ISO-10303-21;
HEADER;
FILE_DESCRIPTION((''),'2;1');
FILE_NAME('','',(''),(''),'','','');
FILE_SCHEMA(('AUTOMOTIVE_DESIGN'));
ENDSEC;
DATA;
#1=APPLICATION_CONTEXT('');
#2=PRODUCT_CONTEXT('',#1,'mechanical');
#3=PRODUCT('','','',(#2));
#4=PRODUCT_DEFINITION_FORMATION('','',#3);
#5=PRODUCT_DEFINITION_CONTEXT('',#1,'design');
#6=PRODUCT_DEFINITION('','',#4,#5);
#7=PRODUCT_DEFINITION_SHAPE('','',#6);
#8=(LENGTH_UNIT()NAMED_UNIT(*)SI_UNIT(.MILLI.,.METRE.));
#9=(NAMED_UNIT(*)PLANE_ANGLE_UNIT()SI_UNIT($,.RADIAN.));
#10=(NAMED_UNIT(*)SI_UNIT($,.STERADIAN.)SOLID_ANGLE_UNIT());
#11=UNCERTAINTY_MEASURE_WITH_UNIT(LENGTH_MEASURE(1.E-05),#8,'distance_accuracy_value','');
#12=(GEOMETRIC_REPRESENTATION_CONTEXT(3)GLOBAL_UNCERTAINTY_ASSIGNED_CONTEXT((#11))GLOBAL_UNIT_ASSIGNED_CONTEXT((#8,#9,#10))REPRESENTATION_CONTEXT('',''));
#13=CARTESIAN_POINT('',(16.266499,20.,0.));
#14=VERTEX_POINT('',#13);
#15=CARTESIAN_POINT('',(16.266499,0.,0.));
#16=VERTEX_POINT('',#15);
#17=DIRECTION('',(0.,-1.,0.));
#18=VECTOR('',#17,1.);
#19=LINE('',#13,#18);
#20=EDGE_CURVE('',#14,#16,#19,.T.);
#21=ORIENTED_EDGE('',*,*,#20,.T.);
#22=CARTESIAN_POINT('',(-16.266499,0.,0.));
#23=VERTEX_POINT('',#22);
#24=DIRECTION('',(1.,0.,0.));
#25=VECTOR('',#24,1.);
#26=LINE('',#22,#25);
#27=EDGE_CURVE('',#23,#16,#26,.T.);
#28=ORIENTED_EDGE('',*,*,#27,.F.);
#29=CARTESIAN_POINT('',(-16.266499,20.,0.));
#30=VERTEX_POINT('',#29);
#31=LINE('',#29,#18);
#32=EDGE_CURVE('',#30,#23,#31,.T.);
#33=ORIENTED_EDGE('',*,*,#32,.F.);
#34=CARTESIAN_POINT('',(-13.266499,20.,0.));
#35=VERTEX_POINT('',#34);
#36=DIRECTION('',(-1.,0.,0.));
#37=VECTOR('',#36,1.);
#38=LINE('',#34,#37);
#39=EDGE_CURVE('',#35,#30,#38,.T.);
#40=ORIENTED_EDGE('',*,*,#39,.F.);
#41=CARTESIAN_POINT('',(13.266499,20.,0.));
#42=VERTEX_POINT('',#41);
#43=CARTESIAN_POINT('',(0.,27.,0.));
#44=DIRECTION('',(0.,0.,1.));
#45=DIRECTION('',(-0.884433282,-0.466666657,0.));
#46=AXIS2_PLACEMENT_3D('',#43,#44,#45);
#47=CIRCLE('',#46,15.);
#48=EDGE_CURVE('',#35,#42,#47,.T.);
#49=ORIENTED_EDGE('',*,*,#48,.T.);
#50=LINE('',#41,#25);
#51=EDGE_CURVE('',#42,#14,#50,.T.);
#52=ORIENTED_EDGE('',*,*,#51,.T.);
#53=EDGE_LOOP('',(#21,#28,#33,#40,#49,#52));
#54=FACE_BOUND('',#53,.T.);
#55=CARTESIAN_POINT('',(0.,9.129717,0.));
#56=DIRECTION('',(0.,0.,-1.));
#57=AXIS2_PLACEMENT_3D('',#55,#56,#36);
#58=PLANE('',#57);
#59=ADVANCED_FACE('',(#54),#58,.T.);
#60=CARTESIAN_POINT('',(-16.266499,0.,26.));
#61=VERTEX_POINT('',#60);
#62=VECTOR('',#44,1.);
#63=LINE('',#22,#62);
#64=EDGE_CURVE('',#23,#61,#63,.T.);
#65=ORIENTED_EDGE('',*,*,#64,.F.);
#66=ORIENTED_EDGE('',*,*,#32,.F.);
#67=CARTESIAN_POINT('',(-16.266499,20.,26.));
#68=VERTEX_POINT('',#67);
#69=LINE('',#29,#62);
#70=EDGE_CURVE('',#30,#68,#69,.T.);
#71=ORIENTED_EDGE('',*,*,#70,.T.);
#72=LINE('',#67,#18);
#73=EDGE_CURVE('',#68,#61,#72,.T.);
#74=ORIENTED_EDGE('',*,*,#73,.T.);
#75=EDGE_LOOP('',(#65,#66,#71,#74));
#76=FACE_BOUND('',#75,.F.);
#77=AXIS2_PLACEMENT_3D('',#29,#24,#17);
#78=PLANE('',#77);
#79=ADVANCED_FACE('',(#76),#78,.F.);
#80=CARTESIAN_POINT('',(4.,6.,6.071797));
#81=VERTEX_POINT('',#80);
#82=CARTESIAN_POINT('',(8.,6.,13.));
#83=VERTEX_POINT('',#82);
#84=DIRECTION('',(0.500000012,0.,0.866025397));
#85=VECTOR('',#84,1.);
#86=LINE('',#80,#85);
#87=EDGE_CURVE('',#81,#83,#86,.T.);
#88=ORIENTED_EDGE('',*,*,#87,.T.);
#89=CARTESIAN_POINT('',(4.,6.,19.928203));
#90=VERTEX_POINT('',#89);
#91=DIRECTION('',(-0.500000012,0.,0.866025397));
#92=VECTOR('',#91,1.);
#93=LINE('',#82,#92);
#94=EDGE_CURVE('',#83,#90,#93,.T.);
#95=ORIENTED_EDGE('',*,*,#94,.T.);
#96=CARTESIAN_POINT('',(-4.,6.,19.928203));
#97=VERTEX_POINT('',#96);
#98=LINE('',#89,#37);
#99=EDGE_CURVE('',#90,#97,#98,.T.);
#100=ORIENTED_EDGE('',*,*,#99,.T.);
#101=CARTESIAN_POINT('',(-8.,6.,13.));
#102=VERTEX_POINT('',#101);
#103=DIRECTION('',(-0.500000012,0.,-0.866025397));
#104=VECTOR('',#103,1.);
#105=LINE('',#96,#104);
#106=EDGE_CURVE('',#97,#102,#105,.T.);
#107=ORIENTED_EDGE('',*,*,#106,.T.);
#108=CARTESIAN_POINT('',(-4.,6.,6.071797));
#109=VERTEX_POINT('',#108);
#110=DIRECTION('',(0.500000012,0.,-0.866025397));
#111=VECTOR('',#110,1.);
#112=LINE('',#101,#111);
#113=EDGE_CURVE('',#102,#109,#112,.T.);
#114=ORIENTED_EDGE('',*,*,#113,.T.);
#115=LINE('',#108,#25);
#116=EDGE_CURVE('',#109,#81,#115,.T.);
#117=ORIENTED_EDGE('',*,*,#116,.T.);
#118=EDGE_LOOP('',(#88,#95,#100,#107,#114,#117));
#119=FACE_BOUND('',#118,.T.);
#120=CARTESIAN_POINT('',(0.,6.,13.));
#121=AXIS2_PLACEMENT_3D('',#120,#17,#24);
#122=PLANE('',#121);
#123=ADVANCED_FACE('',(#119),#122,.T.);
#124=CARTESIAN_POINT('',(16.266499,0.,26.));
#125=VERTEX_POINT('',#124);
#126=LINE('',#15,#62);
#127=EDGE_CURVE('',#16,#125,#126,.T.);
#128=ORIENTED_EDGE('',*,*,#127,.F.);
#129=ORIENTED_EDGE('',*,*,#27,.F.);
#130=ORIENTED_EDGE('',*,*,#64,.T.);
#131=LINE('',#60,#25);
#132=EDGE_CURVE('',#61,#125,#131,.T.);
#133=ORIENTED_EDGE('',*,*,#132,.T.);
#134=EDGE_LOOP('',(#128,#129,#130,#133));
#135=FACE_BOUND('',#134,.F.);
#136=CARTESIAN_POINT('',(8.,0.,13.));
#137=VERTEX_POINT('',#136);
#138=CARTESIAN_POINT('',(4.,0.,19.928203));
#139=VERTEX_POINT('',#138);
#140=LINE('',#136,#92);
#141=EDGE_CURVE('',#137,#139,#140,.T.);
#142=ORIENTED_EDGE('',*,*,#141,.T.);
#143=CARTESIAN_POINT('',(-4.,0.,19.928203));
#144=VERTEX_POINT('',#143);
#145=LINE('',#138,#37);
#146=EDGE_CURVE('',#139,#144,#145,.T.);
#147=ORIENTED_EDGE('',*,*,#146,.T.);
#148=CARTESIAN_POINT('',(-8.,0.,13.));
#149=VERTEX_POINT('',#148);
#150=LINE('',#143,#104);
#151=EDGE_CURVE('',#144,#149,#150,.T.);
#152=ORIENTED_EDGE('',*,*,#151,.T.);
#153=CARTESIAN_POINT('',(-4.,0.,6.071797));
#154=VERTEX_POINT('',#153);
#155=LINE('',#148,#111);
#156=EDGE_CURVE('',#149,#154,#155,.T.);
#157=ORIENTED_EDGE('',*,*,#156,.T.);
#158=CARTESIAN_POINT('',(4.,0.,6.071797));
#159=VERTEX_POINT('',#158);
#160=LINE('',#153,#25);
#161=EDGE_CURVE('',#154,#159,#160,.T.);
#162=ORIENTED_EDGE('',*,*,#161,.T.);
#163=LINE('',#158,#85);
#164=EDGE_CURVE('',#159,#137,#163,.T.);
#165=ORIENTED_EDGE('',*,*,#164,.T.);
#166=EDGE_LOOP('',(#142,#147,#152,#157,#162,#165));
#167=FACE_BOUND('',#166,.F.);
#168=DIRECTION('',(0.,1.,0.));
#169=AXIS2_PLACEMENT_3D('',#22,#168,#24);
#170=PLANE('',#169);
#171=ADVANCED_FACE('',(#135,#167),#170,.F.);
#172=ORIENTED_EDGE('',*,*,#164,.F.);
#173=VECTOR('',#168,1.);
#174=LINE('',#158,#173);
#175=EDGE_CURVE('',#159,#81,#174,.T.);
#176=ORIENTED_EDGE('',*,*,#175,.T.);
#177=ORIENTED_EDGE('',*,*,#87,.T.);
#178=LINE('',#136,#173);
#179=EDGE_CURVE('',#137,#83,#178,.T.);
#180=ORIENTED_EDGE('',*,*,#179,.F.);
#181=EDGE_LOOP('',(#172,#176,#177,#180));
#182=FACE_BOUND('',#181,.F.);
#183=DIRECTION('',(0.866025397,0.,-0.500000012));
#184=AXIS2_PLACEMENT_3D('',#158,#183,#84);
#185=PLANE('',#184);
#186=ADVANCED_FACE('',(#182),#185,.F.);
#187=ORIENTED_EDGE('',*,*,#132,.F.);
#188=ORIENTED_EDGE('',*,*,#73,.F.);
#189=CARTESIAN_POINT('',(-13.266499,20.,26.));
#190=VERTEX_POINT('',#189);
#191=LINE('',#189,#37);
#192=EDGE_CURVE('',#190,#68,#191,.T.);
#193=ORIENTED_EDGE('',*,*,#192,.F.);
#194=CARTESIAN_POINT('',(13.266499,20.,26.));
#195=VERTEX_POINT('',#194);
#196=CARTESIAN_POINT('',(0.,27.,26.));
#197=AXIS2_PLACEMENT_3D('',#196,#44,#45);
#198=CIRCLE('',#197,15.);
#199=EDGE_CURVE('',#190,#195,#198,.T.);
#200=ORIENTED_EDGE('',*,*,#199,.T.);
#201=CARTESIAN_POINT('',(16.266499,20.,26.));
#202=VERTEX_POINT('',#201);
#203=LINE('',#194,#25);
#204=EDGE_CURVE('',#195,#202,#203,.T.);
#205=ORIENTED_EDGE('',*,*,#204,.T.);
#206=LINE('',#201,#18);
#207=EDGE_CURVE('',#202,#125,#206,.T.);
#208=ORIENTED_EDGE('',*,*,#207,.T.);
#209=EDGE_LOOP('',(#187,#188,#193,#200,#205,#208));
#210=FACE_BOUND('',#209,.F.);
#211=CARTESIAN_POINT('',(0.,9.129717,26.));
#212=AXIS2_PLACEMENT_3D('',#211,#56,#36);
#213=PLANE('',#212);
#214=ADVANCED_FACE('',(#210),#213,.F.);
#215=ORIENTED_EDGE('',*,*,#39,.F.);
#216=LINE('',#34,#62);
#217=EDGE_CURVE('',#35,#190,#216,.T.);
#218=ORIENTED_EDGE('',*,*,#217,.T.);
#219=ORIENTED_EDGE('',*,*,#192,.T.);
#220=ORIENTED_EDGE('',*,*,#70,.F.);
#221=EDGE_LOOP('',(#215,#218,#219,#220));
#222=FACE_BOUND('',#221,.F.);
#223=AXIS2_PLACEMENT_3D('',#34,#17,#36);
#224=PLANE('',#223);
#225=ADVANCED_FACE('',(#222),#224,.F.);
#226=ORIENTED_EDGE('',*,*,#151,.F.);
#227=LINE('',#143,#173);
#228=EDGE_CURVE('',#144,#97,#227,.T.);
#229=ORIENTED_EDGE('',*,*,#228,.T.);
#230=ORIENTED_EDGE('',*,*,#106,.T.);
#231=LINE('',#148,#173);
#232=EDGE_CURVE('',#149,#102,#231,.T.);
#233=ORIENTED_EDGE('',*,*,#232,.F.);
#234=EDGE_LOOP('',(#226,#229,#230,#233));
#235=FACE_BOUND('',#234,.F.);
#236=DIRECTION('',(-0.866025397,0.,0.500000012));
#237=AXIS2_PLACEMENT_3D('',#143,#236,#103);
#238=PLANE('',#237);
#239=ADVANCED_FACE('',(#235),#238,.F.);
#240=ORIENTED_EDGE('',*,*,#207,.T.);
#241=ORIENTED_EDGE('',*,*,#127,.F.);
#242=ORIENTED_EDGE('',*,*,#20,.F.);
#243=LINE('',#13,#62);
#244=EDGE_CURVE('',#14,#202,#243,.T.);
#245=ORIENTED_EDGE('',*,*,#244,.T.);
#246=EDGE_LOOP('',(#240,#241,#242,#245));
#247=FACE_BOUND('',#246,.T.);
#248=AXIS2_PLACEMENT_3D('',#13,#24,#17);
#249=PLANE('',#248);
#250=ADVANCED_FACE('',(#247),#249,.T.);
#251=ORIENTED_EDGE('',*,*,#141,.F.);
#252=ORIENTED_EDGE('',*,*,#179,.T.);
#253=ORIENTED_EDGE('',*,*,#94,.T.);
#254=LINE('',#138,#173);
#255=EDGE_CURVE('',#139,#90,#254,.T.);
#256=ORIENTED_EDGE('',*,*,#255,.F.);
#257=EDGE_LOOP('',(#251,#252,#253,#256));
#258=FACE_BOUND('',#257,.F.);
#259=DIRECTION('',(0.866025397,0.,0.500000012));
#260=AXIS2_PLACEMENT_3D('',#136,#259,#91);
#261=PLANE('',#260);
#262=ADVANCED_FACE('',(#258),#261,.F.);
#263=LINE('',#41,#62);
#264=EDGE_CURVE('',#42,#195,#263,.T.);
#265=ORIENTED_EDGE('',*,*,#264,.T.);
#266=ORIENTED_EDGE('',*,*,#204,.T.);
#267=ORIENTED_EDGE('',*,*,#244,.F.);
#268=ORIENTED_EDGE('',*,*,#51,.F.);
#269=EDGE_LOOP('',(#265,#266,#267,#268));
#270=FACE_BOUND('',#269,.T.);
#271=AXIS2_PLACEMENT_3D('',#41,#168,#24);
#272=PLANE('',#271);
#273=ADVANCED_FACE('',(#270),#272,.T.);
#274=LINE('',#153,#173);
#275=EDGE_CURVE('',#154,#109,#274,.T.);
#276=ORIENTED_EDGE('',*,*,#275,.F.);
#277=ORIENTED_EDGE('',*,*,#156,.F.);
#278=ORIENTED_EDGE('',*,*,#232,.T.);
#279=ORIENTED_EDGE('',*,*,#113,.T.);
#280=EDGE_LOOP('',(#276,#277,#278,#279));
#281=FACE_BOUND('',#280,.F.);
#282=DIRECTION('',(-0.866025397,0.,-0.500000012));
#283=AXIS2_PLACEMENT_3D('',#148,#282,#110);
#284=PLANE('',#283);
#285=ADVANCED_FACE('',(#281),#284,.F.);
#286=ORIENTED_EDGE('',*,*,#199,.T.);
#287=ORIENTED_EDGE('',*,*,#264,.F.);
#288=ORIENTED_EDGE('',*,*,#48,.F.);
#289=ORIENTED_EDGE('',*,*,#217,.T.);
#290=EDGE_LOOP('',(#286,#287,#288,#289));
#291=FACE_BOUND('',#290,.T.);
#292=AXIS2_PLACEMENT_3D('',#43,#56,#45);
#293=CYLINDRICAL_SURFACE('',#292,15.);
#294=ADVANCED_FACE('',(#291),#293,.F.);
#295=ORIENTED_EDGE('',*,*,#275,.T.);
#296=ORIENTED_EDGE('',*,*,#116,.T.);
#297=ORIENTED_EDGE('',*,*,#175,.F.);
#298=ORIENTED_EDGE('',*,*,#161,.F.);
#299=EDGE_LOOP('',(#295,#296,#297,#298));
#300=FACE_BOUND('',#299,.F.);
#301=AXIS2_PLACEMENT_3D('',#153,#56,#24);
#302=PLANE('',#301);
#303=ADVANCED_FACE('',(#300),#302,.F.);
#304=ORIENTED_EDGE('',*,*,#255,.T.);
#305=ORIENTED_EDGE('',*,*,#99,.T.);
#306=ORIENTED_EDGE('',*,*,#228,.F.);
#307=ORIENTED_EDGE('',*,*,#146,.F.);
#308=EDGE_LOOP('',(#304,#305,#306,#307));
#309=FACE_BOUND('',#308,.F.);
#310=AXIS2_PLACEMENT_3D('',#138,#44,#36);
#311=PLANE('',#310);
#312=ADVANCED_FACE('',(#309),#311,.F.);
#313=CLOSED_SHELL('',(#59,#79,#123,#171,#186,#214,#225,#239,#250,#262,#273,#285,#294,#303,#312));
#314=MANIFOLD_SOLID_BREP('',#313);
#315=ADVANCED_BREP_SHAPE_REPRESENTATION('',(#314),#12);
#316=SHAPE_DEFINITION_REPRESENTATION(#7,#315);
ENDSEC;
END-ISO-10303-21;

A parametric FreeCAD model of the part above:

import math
import FreeCAD as App
import Part
import Sketcher

V = App.Vector
Q = App.Units.Quantity

doc = App.newDocument("Part")
body = doc.addObject("PartDesign::Body", "Body")

sketch1 = body.newObject("Sketcher::SketchObject", "Sketch")
sketch1.AttachmentSupport = (doc.getObject("XY_Plane"), [""])
sketch1.MapMode = "FlatFace"
sketch1.addGeometry(Part.ArcOfCircle(Part.Circle(V(0, 27, 0), V(0, 0, 1), 15), math.radians(-152), math.radians(-28)), False)
sketch1.addGeometry(Part.LineSegment(V(-13.3, 20, 0), V(-16.3, 20, 0)), False)
sketch1.addGeometry(Part.LineSegment(V(-16.3, 20, 0), V(-16.3, 0, 0)), False)
sketch1.addGeometry(Part.LineSegment(V(-16.3, 0, 0), V(16.3, 0, 0)), False)
sketch1.addGeometry(Part.LineSegment(V(16.3, 0, 0), V(16.3, 20, 0)), False)
sketch1.addGeometry(Part.LineSegment(V(16.3, 20, 0), V(13.3, 20, 0)), False)
sketch1.addConstraint(Sketcher.Constraint("Coincident", 0, 1, 1, 1))
sketch1.addConstraint(Sketcher.Constraint("Coincident", 1, 2, 2, 1))
sketch1.addConstraint(Sketcher.Constraint("Coincident", 2, 2, 3, 1))
sketch1.addConstraint(Sketcher.Constraint("Coincident", 3, 2, 4, 1))
sketch1.addConstraint(Sketcher.Constraint("Coincident", 4, 2, 5, 1))
sketch1.addConstraint(Sketcher.Constraint("Coincident", 5, 2, 0, 2))
sketch1.addConstraint(Sketcher.Constraint("Horizontal", 1))
sketch1.addConstraint(Sketcher.Constraint("Vertical", 2))
sketch1.addConstraint(Sketcher.Constraint("Horizontal", 3))
sketch1.addConstraint(Sketcher.Constraint("Vertical", 4))
sketch1.addConstraint(Sketcher.Constraint("Horizontal", 5))
sketch1.addConstraint(Sketcher.Constraint("Symmetric", 2, 2, 3, 2, -1, 1))
sketch1.addConstraint(Sketcher.Constraint("Symmetric", 0, 1, 5, 2, -2))
sketch1.addConstraint(Sketcher.Constraint("Radius", 0, 15.0))
sketch1.addConstraint(Sketcher.Constraint("DistanceX", 1, 2, 1, 1, 3.0))
sketch1.addConstraint(Sketcher.Constraint("DistanceY", 2, 2, 2, 1, 20.0))
sketch1.addConstraint(Sketcher.Constraint("DistanceY", -1, 1, 0, 3, 27.0))
pad1 = body.newObject("PartDesign::Pad", "Pad")
pad1.Profile = sketch1
pad1.Length = 26

sketch2 = body.newObject("Sketcher::SketchObject", "Sketch001")
sketch2.AttachmentSupport = (doc.getObject("XZ_Plane"), [""])
sketch2.MapMode = "FlatFace"
sketch2.addGeometry(Part.LineSegment(V(4, 6, 0), V(8, 13, 0)), False)
sketch2.addGeometry(Part.LineSegment(V(8, 13, 0), V(4, 20, 0)), False)
sketch2.addGeometry(Part.LineSegment(V(4, 20, 0), V(-4, 20, 0)), False)
sketch2.addGeometry(Part.LineSegment(V(-4, 20, 0), V(-8, 13, 0)), False)
sketch2.addGeometry(Part.LineSegment(V(-8, 13, 0), V(-4, 6, 0)), False)
sketch2.addGeometry(Part.LineSegment(V(-4, 6, 0), V(4, 6, 0)), False)
sketch2.addConstraint(Sketcher.Constraint("Coincident", 0, 2, 1, 1))
sketch2.addConstraint(Sketcher.Constraint("Coincident", 1, 2, 2, 1))
sketch2.addConstraint(Sketcher.Constraint("Coincident", 2, 2, 3, 1))
sketch2.addConstraint(Sketcher.Constraint("Coincident", 3, 2, 4, 1))
sketch2.addConstraint(Sketcher.Constraint("Coincident", 4, 2, 5, 1))
sketch2.addConstraint(Sketcher.Constraint("Coincident", 5, 2, 0, 1))
sketch2.addConstraint(Sketcher.Constraint("Horizontal", 2))
sketch2.addConstraint(Sketcher.Constraint("Horizontal", 5))
sketch2.addConstraint(Sketcher.Constraint("Symmetric", 0, 2, 3, 2, -2))
sketch2.addConstraint(Sketcher.Constraint("Parallel", 0, 3))
sketch2.addConstraint(Sketcher.Constraint("Parallel", 1, 4))
sketch2.addConstraint(Sketcher.Constraint("Vertical", 2, 2, 4, 2))
sketch2.addConstraint(Sketcher.Constraint("Vertical", 1, 2, 5, 2))
sketch2.addConstraint(Sketcher.Constraint("DistanceX", 2, 2, 2, 1, 8.0))
sketch2.addConstraint(Sketcher.Constraint("Angle", 0, Q("59.999999 deg")))
sketch2.addConstraint(Sketcher.Constraint("Distance", 0, 8.0))
sketch2.addConstraint(Sketcher.Constraint("DistanceY", -1, 1, 0, 2, 13.0))
pocket1 = body.newObject("PartDesign::Pocket", "Pocket")
pocket1.Profile = sketch2
pocket1.Length = 6

doc.recompute()
